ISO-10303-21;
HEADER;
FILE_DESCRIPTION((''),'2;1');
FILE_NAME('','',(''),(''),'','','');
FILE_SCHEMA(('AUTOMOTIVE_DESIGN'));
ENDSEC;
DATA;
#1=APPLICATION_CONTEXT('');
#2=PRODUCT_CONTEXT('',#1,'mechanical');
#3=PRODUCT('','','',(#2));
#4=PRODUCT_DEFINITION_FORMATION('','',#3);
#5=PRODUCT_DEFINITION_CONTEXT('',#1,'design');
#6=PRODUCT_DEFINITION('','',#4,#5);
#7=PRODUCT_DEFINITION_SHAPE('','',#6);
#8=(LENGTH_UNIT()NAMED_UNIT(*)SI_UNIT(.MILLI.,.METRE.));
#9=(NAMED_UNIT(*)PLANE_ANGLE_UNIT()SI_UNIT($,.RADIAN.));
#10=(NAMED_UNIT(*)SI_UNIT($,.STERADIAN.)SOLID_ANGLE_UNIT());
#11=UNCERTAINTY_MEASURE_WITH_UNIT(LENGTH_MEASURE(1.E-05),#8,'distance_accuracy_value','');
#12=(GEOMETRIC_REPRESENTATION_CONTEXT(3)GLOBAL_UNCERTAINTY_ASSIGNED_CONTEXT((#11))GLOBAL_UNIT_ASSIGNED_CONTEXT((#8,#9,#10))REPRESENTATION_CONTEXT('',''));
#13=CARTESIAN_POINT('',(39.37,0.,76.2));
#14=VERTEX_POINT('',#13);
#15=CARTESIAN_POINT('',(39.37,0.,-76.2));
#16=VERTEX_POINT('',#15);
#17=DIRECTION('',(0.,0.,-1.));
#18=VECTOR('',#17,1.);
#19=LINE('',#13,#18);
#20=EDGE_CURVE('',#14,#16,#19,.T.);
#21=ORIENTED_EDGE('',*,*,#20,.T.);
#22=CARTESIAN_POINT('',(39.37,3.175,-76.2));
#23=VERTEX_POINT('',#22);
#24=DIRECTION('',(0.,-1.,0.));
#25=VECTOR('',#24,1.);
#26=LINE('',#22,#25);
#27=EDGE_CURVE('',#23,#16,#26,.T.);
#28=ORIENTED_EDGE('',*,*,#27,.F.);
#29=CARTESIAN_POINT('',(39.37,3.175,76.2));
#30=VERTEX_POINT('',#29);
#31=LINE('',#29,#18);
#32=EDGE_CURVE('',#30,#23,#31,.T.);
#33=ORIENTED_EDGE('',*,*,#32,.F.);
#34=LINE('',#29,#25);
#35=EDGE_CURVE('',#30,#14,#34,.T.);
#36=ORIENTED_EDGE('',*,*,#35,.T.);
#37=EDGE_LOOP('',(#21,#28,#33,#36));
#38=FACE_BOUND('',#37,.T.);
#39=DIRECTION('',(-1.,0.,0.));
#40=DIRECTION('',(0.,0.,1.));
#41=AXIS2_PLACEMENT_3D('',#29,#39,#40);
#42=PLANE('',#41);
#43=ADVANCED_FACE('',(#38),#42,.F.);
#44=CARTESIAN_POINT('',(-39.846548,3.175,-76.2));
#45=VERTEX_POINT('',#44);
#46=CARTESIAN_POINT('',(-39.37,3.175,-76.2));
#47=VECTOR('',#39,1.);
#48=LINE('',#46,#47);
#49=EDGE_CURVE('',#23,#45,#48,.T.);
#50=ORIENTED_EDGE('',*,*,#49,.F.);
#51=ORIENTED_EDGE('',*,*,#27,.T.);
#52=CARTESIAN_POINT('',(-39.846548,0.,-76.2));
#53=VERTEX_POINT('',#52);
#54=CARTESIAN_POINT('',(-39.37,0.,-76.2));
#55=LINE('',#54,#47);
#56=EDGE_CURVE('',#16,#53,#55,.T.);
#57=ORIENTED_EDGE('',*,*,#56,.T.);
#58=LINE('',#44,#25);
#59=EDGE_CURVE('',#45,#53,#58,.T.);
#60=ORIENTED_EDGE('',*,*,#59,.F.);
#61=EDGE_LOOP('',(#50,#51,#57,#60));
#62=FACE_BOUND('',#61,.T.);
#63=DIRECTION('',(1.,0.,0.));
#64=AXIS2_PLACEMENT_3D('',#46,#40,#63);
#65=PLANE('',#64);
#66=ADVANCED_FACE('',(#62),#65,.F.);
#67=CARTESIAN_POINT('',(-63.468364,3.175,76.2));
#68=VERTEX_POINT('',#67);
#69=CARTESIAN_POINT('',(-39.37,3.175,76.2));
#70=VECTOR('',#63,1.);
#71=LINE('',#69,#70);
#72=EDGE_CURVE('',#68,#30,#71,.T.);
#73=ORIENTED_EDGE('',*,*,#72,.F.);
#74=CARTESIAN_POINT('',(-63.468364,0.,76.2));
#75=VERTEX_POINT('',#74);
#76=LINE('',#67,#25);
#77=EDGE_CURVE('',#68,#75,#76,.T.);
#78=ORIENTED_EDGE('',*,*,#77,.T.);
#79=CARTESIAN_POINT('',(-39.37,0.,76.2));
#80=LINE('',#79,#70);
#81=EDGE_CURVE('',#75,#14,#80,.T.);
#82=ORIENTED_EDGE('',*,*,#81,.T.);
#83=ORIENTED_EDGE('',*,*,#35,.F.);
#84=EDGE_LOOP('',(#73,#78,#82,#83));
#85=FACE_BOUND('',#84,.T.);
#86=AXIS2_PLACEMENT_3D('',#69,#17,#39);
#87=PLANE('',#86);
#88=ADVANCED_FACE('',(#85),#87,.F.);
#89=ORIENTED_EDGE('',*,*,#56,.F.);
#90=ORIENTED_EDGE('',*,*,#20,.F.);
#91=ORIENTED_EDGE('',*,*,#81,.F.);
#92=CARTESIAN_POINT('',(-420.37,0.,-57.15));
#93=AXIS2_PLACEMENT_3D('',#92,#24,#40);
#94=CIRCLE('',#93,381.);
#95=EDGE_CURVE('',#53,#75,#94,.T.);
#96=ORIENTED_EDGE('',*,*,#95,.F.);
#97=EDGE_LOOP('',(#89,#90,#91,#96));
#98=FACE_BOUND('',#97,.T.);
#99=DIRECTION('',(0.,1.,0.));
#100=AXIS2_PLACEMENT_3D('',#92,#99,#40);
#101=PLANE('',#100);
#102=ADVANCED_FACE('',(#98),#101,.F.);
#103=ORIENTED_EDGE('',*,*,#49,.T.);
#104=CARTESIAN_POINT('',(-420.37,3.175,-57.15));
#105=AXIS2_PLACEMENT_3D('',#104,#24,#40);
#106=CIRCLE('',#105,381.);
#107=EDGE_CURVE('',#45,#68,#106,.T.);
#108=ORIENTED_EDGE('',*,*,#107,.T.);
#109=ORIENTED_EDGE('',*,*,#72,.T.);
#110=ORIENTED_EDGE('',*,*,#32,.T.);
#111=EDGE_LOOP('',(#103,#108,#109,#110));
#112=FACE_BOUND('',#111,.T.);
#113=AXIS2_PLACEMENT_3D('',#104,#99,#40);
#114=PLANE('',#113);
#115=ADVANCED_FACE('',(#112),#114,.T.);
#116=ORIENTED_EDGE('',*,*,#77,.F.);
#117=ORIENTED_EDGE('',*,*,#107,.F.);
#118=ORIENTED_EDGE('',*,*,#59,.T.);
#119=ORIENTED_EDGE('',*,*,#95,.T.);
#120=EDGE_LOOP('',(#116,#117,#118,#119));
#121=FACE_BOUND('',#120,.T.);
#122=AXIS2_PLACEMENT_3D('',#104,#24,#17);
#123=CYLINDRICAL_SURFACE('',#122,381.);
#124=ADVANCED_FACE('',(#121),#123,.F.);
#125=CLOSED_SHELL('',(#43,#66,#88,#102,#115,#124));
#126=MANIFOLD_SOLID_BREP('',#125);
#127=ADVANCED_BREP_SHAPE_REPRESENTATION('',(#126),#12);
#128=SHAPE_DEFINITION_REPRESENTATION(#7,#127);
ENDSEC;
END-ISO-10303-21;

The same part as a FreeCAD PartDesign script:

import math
import FreeCAD as App
import Part
import Sketcher

V = App.Vector
Q = App.Units.Quantity

doc = App.newDocument("Part")
params = doc.addObject("Spreadsheet::Sheet", "Params")
for row, (alias, value) in enumerate([
    ("sketch1_radius", "15 in"),
    ("sketch1_height", "6 in"),
    ("pad1_length", "0.125 in"),
], start=1):
    params.set(f"A{row}", alias)
    params.set(f"B{row}", "=" + value)
    params.setAlias(f"B{row}", alias)

body = doc.addObject("PartDesign::Body", "Body")

sketch1 = body.newObject("Sketcher::SketchObject", "Sketch")
sketch1.AttachmentSupport = (doc.getObject("XZ_Plane"), [""])
sketch1.MapMode = "FlatFace"
sketch1.addGeometry([
    Part.ArcOfCircle(Part.Circle(V(-420, -57, 0), V(0, 0, 1), 381), math.radians(-3), math.radians(20)),
    Part.LineSegment(V(-63, 76, 0), V(39, 76, 0)),
    Part.LineSegment(V(39, 76, 0), V(39, -76, 0)),
    Part.LineSegment(V(39, -76, 0), V(-40, -76, 0)),
], False)
sketch1.addConstraint([
    Sketcher.Constraint("Coincident", 0, 2, 1, 1),
    Sketcher.Constraint("Coincident", 1, 2, 2, 1),
    Sketcher.Constraint("Coincident", 2, 2, 3, 1),
    Sketcher.Constraint("Coincident", 3, 2, 0, 1),
    Sketcher.Constraint("Horizontal", 1),
    Sketcher.Constraint("Vertical", 2),
    Sketcher.Constraint("Horizontal", 3),
    Sketcher.Constraint("Radius", 0, Q("15 in")),
    Sketcher.Constraint("DistanceY", 2, 2, 2, 1, Q("6 in")),
    Sketcher.Constraint("DistanceY", -1, 1, 1, 2, Q("3 in")),
    Sketcher.Constraint("DistanceX", 0, 3, 1, 2, Q("18.1 in")),
    Sketcher.Constraint("DistanceX", 0, 3, -1, 1, Q("16.55 in")),
    Sketcher.Constraint("DistanceY", 0, 3, -1, 1, Q("2.25 in")),
])
sketch1.setExpression("Constraints[7]", "Params.sketch1_radius")
sketch1.setExpression("Constraints[8]", "Params.sketch1_height")
pad1 = body.newObject("PartDesign::Pad", "Pad")
pad1.Profile = sketch1
pad1.setExpression("Length", "Params.pad1_length")
pad1.Reversed = True

doc.recompute()
